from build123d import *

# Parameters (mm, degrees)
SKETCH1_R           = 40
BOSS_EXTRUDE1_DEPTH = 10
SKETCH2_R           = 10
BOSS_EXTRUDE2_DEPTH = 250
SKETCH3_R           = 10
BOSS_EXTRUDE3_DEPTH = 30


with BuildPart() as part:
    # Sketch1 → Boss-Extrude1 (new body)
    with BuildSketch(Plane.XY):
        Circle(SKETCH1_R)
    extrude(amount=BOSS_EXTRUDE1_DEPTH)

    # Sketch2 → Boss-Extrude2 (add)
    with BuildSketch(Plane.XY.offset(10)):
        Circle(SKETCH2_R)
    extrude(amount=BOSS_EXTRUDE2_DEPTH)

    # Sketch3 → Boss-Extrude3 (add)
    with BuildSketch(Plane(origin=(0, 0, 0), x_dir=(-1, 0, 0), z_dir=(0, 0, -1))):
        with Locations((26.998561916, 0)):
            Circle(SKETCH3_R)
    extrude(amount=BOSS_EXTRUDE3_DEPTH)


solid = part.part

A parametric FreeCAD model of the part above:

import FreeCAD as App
import Part
import Sketcher
from FreeCAD import Vector
Q = App.Units.Quantity

doc = App.newDocument("Part")
body = doc.addObject("PartDesign::Body", "Body")

# Sketch on XY plane
sketch1 = body.newObject("Sketcher::SketchObject", "Sketch")
sketch1.AttachmentSupport = (doc.getObject("XY_Plane"), [""])
sketch1.MapMode = "FlatFace"
sketch1.addGeometry(Part.Circle(Vector(0, 0, 0), Vector(0, 0, 1), 40), False)
sketch1.addConstraint([
    Sketcher.Constraint("Coincident", 0, 3, -1, 1),
    Sketcher.Constraint("Diameter", 0, Q("80 mm")),
])
pad1 = body.newObject("PartDesign::Pad", "Pad")
pad1.Profile = sketch1
pad1.Length = 10

# Sketch on XY plane
sketch2 = body.newObject("Sketcher::SketchObject", "Sketch001")
sketch2.AttachmentSupport = (doc.getObject("XY_Plane"), [""])
sketch2.MapMode = "FlatFace"
sketch2.AttachmentOffset = App.Placement(Vector(0, 0, 10), App.Rotation())
sketch2.addGeometry(Part.Circle(Vector(0, 0, 0), Vector(0, 0, 1), 10), False)
sketch2.addConstraint([
    Sketcher.Constraint("Coincident", 0, 3, -1, 1),
    Sketcher.Constraint("Diameter", 0, Q("20 mm")),
])
pad2 = body.newObject("PartDesign::Pad", "Pad001")
pad2.Profile = sketch2
pad2.Length = 250

# Sketch on XY plane
sketch3 = body.newObject("Sketcher::SketchObject", "Sketch002")
sketch3.AttachmentSupport = (doc.getObject("XY_Plane"), [""])
sketch3.MapMode = "FlatFace"
sketch3.addGeometry(Part.Circle(Vector(-26.998562, 0, 0), Vector(0, 0, 1), 10), False)
sketch3.addConstraint([
    Sketcher.Constraint("PointOnObject", 0, 3, -1),
    Sketcher.Constraint("Diameter", 0, Q("20 mm")),
    Sketcher.Constraint("DistanceX", 0, 3, -1, 1, Q("26.998562 mm")),
])
pad3 = body.newObject("PartDesign::Pad", "Pad002")
pad3.Profile = sketch3
pad3.Length = 30
pad3.Reversed = True

doc.recompute()
